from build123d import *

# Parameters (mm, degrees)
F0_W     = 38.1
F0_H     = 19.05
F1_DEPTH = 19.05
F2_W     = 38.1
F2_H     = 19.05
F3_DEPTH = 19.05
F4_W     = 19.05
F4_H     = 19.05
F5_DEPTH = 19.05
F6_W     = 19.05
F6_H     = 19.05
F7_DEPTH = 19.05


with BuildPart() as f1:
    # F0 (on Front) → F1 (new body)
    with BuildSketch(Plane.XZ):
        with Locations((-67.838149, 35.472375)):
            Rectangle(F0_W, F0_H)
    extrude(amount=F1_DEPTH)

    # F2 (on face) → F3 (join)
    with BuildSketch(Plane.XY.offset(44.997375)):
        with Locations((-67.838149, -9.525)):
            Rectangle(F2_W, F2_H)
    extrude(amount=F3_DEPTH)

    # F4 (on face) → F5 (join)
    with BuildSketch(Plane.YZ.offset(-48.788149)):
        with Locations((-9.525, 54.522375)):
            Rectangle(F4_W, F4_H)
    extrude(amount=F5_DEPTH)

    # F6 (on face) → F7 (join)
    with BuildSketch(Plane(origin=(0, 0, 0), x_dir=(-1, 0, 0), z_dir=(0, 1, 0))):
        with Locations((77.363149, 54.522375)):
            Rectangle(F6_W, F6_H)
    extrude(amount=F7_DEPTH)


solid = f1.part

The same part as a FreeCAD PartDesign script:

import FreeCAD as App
import Part
import Sketcher
from FreeCAD import Vector
Q = App.Units.Quantity


def add_polygon(sketch, points):
    """Adds a closed chain of lines whose ends are joined by coincident constraints."""
    first, n = sketch.GeometryCount, len(points)
    for a, b in zip(points, points[1:] + points[:1]):
        sketch.addGeometry(Part.LineSegment(App.Vector(*a, 0), App.Vector(*b, 0)), False)
    for i in range(n):
        sketch.addConstraint(Sketcher.Constraint("Coincident", first + i, 2, first + (i + 1) % n, 1))

doc = App.newDocument("Part")
body = doc.addObject("PartDesign::Body", "Body")

# Sketch on XZ plane
sketch1 = body.newObject("Sketcher::SketchObject", "Sketch")
sketch1.AttachmentSupport = (doc.getObject("XZ_Plane"), [""])
sketch1.MapMode = "FlatFace"
add_polygon(sketch1, [(-87, 45), (-87, 26), (-49, 26), (-49, 45)])  # lines 0-3
sketch1.addConstraint(Sketcher.Constraint("Vertical", 0))
sketch1.addConstraint(Sketcher.Constraint("Horizontal", 1))
sketch1.addConstraint(Sketcher.Constraint("Vertical", 2))
sketch1.addConstraint(Sketcher.Constraint("Horizontal", 3))
sketch1.addConstraint(Sketcher.Constraint("DistanceX", 1, 1, 1, 2, Q("1.5 in")))
sketch1.addConstraint(Sketcher.Constraint("DistanceY", 0, 2, 0, 1, Q("0.75 in")))
sketch1.addConstraint(Sketcher.Constraint("DistanceX", 0, 2, -1, 1, 86.888149))
sketch1.addConstraint(Sketcher.Constraint("DistanceY", -1, 1, 0, 2, 25.947375))
pad1 = body.newObject("PartDesign::Pad", "Pad")
pad1.Profile = sketch1
pad1.Length = Q("0.75 in")

# Sketch on XY plane
sketch2 = body.newObject("Sketcher::SketchObject", "Sketch001")
sketch2.AttachmentSupport = (doc.getObject("XY_Plane"), [""])
sketch2.MapMode = "FlatFace"
sketch2.AttachmentOffset = App.Placement(Vector(0, 0, 44.997375), App.Rotation())
add_polygon(sketch2, [(-87, 0), (-87, -19), (-49, -19), (-49, 0)])  # lines 0-3
sketch2.addConstraint(Sketcher.Constraint("Vertical", 0))
sketch2.addConstraint(Sketcher.Constraint("Horizontal", 1))
sketch2.addConstraint(Sketcher.Constraint("Vertical", 2))
sketch2.addConstraint(Sketcher.Constraint("Horizontal", 3))
sketch2.addConstraint(Sketcher.Constraint("PointOnObject", 2, 2, -1))
sketch2.addConstraint(Sketcher.Constraint("DistanceX", 1, 1, 1, 2, Q("1.5 in")))
sketch2.addConstraint(Sketcher.Constraint("DistanceY", 0, 2, 0, 1, Q("0.75 in")))
sketch2.addConstraint(Sketcher.Constraint("DistanceX", 0, 2, -1, 1, 86.888149))
pad2 = body.newObject("PartDesign::Pad", "Pad001")
pad2.Profile = sketch2
pad2.Length = Q("0.75 in")

# Sketch on YZ plane
sketch3 = body.newObject("Sketcher::SketchObject", "Sketch002")
sketch3.AttachmentSupport = (doc.getObject("YZ_Plane"), [""])
sketch3.MapMode = "FlatFace"
sketch3.AttachmentOffset = App.Placement(Vector(0, 0, -48.788149), App.Rotation())
add_polygon(sketch3, [(-19, 64), (-19, 45), (0, 45), (0, 64)])  # lines 0-3
sketch3.addConstraint(Sketcher.Constraint("Vertical", 0))
sketch3.addConstraint(Sketcher.Constraint("Horizontal", 1))
sketch3.addConstraint(Sketcher.Constraint("Vertical", 2))
sketch3.addConstraint(Sketcher.Constraint("Horizontal", 3))
sketch3.addConstraint(Sketcher.Constraint("PointOnObject", 1, 2, -2))
sketch3.addConstraint(Sketcher.Constraint("Equal", 3, 0))
sketch3.addConstraint(Sketcher.Constraint("DistanceX", 1, 1, 1, 2, Q("0.75 in")))
sketch3.addConstraint(Sketcher.Constraint("DistanceY", -1, 1, 0, 2, 44.997375))
pad3 = body.newObject("PartDesign::Pad", "Pad002")
pad3.Profile = sketch3
pad3.Length = Q("0.75 in")

# Sketch on XZ plane
sketch4 = body.newObject("Sketcher::SketchObject", "Sketch003")
sketch4.AttachmentSupport = (doc.getObject("XZ_Plane"), [""])
sketch4.MapMode = "FlatFace"
add_polygon(sketch4, [(-68, 64), (-68, 45), (-87, 45), (-87, 64)])  # lines 0-3
sketch4.addConstraint(Sketcher.Constraint("Vertical", 0))
sketch4.addConstraint(Sketcher.Constraint("Horizontal", 1))
sketch4.addConstraint(Sketcher.Constraint("Vertical", 2))
sketch4.addConstraint(Sketcher.Constraint("Horizontal", 3))
sketch4.addConstraint(Sketcher.Constraint("Equal", 3, 0))
sketch4.addConstraint(Sketcher.Constraint("DistanceX", 1, 2, 1, 1, Q("0.75 in")))
sketch4.addConstraint(Sketcher.Constraint("DistanceX", 0, 2, -1, 1, 67.838149))
sketch4.addConstraint(Sketcher.Constraint("DistanceY", -1, 1, 0, 2, 44.997375))
pad4 = body.newObject("PartDesign::Pad", "Pad003")
pad4.Profile = sketch4
pad4.Length = Q("0.75 in")
pad4.Reversed = True

doc.recompute()
